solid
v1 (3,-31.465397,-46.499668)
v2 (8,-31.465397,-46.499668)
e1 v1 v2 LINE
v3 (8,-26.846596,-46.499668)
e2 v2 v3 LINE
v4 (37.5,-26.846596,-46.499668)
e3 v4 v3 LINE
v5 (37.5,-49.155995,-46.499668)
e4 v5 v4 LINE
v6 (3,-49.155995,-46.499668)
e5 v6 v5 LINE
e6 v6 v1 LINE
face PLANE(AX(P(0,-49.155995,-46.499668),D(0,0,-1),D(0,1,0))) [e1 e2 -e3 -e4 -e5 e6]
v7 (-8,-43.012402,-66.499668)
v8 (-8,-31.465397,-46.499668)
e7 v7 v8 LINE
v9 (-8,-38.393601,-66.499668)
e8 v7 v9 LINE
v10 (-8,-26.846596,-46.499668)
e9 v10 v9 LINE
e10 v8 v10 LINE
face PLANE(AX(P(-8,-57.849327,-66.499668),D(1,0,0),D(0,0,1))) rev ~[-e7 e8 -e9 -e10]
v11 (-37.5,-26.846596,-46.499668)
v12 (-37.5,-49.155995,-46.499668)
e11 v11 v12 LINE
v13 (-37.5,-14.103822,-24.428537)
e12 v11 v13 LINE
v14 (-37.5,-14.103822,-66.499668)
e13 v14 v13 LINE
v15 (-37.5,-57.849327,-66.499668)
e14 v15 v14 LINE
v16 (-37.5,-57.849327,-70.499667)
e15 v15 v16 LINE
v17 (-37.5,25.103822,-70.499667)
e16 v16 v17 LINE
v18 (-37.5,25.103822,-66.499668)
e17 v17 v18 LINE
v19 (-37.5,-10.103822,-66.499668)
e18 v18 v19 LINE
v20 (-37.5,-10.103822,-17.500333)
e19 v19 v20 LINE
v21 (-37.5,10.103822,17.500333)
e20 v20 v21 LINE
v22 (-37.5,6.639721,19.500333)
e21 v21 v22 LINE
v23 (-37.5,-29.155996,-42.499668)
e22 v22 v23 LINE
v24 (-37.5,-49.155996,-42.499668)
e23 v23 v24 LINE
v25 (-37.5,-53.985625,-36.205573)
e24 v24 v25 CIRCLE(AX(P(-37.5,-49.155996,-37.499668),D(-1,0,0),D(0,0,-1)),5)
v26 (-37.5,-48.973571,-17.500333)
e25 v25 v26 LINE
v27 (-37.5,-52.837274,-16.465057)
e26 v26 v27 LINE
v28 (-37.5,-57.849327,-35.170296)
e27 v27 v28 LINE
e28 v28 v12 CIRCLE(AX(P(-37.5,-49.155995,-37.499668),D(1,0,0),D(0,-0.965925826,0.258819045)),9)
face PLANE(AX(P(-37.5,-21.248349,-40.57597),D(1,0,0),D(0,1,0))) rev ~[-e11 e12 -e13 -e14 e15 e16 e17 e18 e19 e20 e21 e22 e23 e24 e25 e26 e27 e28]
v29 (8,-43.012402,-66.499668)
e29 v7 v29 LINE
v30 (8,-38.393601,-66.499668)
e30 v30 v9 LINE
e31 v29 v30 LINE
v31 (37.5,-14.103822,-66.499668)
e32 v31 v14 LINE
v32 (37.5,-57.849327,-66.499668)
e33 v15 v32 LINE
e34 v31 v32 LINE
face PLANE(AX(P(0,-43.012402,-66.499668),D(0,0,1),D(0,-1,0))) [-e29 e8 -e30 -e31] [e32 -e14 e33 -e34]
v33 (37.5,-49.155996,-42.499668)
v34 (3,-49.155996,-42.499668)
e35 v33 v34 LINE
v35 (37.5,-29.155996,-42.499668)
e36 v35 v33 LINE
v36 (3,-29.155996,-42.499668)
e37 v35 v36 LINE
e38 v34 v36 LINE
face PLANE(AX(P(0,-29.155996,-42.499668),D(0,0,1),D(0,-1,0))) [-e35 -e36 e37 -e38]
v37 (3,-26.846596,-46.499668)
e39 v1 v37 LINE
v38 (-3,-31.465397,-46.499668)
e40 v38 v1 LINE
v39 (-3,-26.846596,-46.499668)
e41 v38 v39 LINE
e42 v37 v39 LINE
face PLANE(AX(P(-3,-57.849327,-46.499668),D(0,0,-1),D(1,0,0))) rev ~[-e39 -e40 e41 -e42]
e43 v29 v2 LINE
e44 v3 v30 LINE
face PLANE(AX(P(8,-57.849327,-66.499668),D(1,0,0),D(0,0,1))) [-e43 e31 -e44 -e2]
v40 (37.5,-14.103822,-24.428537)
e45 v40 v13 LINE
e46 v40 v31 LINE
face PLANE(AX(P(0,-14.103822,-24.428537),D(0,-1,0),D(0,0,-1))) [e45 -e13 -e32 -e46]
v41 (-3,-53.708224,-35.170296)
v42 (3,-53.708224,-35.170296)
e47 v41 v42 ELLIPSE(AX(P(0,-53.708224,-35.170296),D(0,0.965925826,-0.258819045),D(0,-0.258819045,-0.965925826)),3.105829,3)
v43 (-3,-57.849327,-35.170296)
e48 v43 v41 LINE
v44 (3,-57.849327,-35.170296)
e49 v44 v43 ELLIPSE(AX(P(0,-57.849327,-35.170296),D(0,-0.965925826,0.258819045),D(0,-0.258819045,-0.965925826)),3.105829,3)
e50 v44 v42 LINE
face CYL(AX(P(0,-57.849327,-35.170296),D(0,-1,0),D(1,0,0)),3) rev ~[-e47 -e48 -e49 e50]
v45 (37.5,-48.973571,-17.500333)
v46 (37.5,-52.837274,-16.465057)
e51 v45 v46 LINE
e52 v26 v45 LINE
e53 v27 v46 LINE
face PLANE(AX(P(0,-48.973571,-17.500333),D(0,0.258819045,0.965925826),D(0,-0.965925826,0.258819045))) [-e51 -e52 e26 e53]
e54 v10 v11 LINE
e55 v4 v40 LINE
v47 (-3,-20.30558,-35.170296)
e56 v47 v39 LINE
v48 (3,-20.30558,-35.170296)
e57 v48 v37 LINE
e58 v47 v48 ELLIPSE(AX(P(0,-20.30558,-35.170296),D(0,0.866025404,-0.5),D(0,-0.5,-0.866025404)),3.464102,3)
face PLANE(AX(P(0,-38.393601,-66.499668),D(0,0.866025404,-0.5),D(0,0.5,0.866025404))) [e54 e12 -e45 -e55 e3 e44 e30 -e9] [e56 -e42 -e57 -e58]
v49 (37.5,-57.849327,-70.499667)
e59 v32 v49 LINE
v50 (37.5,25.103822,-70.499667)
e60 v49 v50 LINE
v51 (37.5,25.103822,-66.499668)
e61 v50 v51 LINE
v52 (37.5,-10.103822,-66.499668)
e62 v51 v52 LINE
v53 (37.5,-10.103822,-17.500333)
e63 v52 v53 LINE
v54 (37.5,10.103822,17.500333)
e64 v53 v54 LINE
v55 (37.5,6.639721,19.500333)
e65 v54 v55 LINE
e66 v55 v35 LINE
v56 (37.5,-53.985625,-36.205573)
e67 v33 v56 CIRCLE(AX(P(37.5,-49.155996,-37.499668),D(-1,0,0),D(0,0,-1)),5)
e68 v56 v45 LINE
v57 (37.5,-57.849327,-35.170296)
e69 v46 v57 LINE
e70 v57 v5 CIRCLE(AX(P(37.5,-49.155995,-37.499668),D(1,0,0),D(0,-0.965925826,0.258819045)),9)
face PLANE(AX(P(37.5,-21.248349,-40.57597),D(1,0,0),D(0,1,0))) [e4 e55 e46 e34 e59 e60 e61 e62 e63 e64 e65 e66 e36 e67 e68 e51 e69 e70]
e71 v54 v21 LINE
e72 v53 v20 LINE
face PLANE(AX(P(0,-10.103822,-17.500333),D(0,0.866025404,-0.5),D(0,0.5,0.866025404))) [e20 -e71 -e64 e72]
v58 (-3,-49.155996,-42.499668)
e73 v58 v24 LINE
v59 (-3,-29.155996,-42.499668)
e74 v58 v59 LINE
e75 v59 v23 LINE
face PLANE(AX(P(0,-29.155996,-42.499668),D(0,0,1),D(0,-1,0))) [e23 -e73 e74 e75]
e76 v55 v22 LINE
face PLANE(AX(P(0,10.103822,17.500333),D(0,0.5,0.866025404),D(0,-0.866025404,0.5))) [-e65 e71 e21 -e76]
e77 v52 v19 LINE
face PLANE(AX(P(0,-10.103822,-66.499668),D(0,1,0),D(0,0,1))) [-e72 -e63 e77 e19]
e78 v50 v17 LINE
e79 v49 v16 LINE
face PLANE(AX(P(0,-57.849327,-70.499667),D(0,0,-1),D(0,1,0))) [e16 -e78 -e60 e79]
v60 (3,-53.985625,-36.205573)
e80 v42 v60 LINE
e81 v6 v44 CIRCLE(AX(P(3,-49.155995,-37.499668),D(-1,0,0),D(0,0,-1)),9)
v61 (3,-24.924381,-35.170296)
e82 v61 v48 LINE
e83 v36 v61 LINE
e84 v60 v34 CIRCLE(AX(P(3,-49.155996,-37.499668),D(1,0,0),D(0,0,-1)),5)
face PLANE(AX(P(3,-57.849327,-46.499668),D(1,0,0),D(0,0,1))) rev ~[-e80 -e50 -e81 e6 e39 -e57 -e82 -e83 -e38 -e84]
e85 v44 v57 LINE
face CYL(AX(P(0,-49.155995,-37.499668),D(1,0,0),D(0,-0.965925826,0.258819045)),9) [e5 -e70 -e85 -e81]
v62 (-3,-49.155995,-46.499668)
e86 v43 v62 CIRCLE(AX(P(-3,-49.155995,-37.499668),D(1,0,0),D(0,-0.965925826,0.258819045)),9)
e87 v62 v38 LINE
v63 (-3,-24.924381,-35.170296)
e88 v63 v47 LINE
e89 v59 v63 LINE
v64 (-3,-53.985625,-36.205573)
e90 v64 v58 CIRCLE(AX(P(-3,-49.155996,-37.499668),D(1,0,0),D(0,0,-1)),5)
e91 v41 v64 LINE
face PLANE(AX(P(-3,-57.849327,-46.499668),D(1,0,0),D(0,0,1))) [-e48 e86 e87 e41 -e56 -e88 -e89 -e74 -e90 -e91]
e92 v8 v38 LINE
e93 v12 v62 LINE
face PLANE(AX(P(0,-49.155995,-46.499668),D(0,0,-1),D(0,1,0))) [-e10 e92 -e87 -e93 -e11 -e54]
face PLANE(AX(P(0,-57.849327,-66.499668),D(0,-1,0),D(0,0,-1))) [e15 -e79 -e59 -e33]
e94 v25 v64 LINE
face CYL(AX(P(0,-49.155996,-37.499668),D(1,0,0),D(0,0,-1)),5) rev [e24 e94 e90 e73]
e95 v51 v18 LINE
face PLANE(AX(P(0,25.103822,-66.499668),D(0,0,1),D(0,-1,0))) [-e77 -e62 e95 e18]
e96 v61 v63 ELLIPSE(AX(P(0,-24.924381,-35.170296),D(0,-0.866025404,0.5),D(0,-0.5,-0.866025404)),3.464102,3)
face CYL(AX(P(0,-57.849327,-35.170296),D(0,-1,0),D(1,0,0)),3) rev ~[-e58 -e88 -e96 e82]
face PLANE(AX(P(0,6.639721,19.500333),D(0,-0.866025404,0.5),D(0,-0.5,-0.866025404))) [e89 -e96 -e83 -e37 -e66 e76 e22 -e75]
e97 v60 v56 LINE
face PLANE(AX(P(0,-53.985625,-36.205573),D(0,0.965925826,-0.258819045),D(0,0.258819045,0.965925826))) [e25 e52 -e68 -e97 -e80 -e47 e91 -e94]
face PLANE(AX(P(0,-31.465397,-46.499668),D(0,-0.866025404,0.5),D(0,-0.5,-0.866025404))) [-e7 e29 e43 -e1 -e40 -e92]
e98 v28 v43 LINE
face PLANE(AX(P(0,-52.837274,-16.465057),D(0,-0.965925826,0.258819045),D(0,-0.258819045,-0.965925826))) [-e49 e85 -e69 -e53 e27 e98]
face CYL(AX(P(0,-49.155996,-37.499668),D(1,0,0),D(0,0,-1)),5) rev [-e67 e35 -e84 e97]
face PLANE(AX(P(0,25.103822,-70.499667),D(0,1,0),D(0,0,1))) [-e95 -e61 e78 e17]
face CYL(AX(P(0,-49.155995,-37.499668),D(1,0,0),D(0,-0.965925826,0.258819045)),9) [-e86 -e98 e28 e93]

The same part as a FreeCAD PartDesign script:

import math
import FreeCAD as App
import Part
import Sketcher

V = App.Vector
Q = App.Units.Quantity


def add_polygon(sketch, points):
    """Adds a closed chain of lines whose ends are joined by coincident constraints."""
    first, n = sketch.GeometryCount, len(points)
    for a, b in zip(points, points[1:] + points[:1]):
        sketch.addGeometry(Part.LineSegment(App.Vector(*a, 0), App.Vector(*b, 0)), False)
    for i in range(n):
        sketch.addConstraint(Sketcher.Constraint("Coincident", first + i, 2, first + (i + 1) % n, 1))

doc = App.newDocument("Part")
body = doc.addObject("PartDesign::Body", "Body")

# Sketch on YZ plane
sketch1 = body.newObject("Sketcher::SketchObject", "Sketch")
sketch1.AttachmentSupport = (doc.getObject("YZ_Plane"), [""])
sketch1.MapMode = "FlatFace"
sketch1.addGeometry(Part.ArcOfCircle(Part.Circle(V(-49.2, -37.5, 0), V(0, 0, 1), 5), math.radians(165), math.radians(270)), False)  # 0
sketch1.addGeometry(Part.LineSegment(V(-54, -36.2, 0), V(-49, -17.5, 0)), False)  # 1
sketch1.addGeometry(Part.LineSegment(V(-49, -17.5, 0), V(-52.8, -16.5, 0)), False)  # 2
sketch1.addGeometry(Part.LineSegment(V(-52.8, -16.5, 0), V(-57.8, -35.2, 0)), False)  # 3
sketch1.addGeometry(Part.ArcOfCircle(Part.Circle(V(-49.2, -37.5, 0), V(0, 0, 1), 9), math.radians(165), math.radians(270)), False)  # 4
sketch1.addGeometry(Part.LineSegment(V(-49.2, -46.5, 0), V(-31.5, -46.5, 0)), False)  # 5
sketch1.addGeometry(Part.LineSegment(V(-31.5, -46.5, 0), V(-43, -66.5, 0)), False)  # 6
sketch1.addGeometry(Part.LineSegment(V(-43, -66.5, 0), V(-57.8, -66.5, 0)), False)  # 7
sketch1.addGeometry(Part.LineSegment(V(-57.8, -66.5, 0), V(-57.8, -70.5, 0)), False)  # 8
sketch1.addGeometry(Part.LineSegment(V(-57.8, -70.5, 0), V(25.1, -70.5, 0)), False)  # 9
sketch1.addGeometry(Part.LineSegment(V(25.1, -70.5, 0), V(25.1, -66.5, 0)), False)  # 10
sketch1.addGeometry(Part.LineSegment(V(25.1, -66.5, 0), V(-10.1, -66.5, 0)), False)  # 11
sketch1.addGeometry(Part.LineSegment(V(-10.1, -66.5, 0), V(-10.1, -17.5, 0)), False)  # 12
sketch1.addGeometry(Part.LineSegment(V(-10.1, -17.5, 0), V(10.1, 17.5, 0)), False)  # 13
sketch1.addGeometry(Part.LineSegment(V(10.1, 17.5, 0), V(6.6, 19.5, 0)), False)  # 14
sketch1.addGeometry(Part.LineSegment(V(6.6, 19.5, 0), V(-29.2, -42.5, 0)), False)  # 15
sketch1.addGeometry(Part.LineSegment(V(-29.2, -42.5, 0), V(-49.2, -42.5, 0)), False)  # 16
add_polygon(sketch1, [(-14.1, -24.4), (-14.1, -66.5), (-38.4, -66.5)])  # lines 17-19
sketch1.addConstraint([
    Sketcher.Constraint("Tangent", 0, 1, 1, 1),
    Sketcher.Constraint("Coincident", 1, 2, 2, 1),
    Sketcher.Constraint("Coincident", 2, 2, 3, 1),
    Sketcher.Constraint("Tangent", 3, 2, 4, 1),
    Sketcher.Constraint("Tangent", 4, 2, 5, 1),
    Sketcher.Constraint("Coincident", 5, 2, 6, 1),
    Sketcher.Constraint("Coincident", 6, 2, 7, 1),
    Sketcher.Constraint("Coincident", 7, 2, 8, 1),
    Sketcher.Constraint("Coincident", 8, 2, 9, 1),
    Sketcher.Constraint("Coincident", 9, 2, 10, 1),
    Sketcher.Constraint("Coincident", 10, 2, 11, 1),
    Sketcher.Constraint("Coincident", 11, 2, 12, 1),
    Sketcher.Constraint("Coincident", 12, 2, 13, 1),
    Sketcher.Constraint("Coincident", 13, 2, 14, 1),
    Sketcher.Constraint("Coincident", 14, 2, 15, 1),
    Sketcher.Constraint("Coincident", 15, 2, 16, 1),
    Sketcher.Constraint("Tangent", 16, 2, 0, 2),
    Sketcher.Constraint("Horizontal", 5),
    Sketcher.Constraint("Horizontal", 7),
    Sketcher.Constraint("Vertical", 8),
    Sketcher.Constraint("Horizontal", 9),
    Sketcher.Constraint("Vertical", 10),
    Sketcher.Constraint("Horizontal", 11),
    Sketcher.Constraint("Vertical", 12),
    Sketcher.Constraint("Horizontal", 16),
    Sketcher.Constraint("Vertical", 17),
    Sketcher.Constraint("Horizontal", 18),
    Sketcher.Constraint("Coincident", 4, 3, 0, 3),
    Sketcher.Constraint("Symmetric", 12, 2, 13, 2, -1, 1),
    Sketcher.Constraint("Perpendicular", 1, 2),
    Sketcher.Constraint("Perpendicular", 2, 3),
    Sketcher.Constraint("Parallel", 6, 13),
    Sketcher.Constraint("Perpendicular", 13, 14),
    Sketcher.Constraint("Perpendicular", 14, 15),
    Sketcher.Constraint("Parallel", 15, 19),
    Sketcher.Constraint("Horizontal", 7, 2, 10, 2),
    Sketcher.Constraint("Horizontal", 1, 2, 12, 2),
    Sketcher.Constraint("Horizontal", 11, 2, 17, 2),
    Sketcher.Constraint("Vertical", 3, 2, 7, 2),
    Sketcher.Constraint("Equal", 2, 14),
    Sketcher.Constraint("Radius", 0, Q("5 mm")),
    Sketcher.Constraint("Radius", 4, Q("9 mm")),
    Sketcher.Constraint("DistanceX", 16, 2, 16, 1, Q("20 mm")),
    Sketcher.Constraint("DistanceY", 8, 2, 8, 1, Q("3.999999 mm")),
    Sketcher.Constraint("Angle", 1, Q("75 deg")),
    Sketcher.Constraint("Angle", 6, Q("-120 deg")),
    Sketcher.Constraint("DistanceY", 6, 2, 4, 2, Q("20 mm")),
    Sketcher.Constraint("DistanceY", 5, 2, 13, 2, Q("64.000001 mm")),
    Sketcher.Constraint("DistanceX", 17, 2, 11, 2, Q("4 mm")),
    Sketcher.Constraint("DistanceX", 5, 1, 5, 2, Q("17.690598 mm")),
    Sketcher.Constraint("DistanceX", 9, 1, 9, 2, Q("82.95315 mm")),
    Sketcher.Constraint("DistanceX", 18, 2, 18, 1, Q("24.289779 mm")),
    Sketcher.Constraint("DistanceX", 18, 2, -1, 1, Q("38.393601 mm")),
])
pad1 = body.newObject("PartDesign::Pad", "Pad")
pad1.Profile = sketch1
pad1.Length = 75
pad1.Midplane = True

# Sketch on XZ plane
sketch2 = body.newObject("Sketcher::SketchObject", "Sketch001")
sketch2.AttachmentSupport = (doc.getObject("XZ_Plane"), [""])
sketch2.MapMode = "FlatFace"
sketch2.AttachmentOffset = App.Placement(V(0, 0, 57.849327), App.Rotation())
add_polygon(sketch2, [(-37.5, -46.5), (-37.5, -66.5), (-8, -66.5), (-8, -46.5)])  # lines 0-3
add_polygon(sketch2, [(8, -46.5), (8, -66.5), (37.5, -66.5), (37.5, -46.5)])  # lines 4-7
sketch2.addGeometry(Part.LineSegment(V(-3, -35.2, 0), V(-3, -46.5, 0)), False)  # 8
sketch2.addGeometry(Part.LineSegment(V(-3, -46.5, 0), V(3, -46.5, 0)), False)  # 9
sketch2.addGeometry(Part.LineSegment(V(3, -46.5, 0), V(3, -35.2, 0)), False)  # 10
sketch2.addGeometry(Part.ArcOfCircle(Part.Circle(V(0, -35.2, 0), V(0, 0, 1), 3), math.radians(0), math.radians(180)), False)  # 11
sketch2.addConstraint([
    Sketcher.Constraint("Coincident", 8, 2, 9, 1),
    Sketcher.Constraint("Coincident", 9, 2, 10, 1),
    Sketcher.Constraint("Tangent", 10, 2, 11, 1),
    Sketcher.Constraint("Tangent", 11, 2, 8, 1),
    Sketcher.Constraint("Vertical", 0),
    Sketcher.Constraint("Horizontal", 1),
    Sketcher.Constraint("Vertical", 2),
    Sketcher.Constraint("Horizontal", 3),
    Sketcher.Constraint("Vertical", 4),
    Sketcher.Constraint("Horizontal", 5),
    Sketcher.Constraint("Vertical", 6),
    Sketcher.Constraint("Horizontal", 7),
    Sketcher.Constraint("Vertical", 8),
    Sketcher.Constraint("Horizontal", 9),
    Sketcher.Constraint("Vertical", 10),
    Sketcher.Constraint("Symmetric", 1, 2, 4, 2, -2),
    Sketcher.Constraint("Symmetric", 3, 2, 6, 2, -2),
    Sketcher.Constraint("PointOnObject", 11, 3, -2),
    Sketcher.Constraint("Horizontal", 7, 2, 8, 2),
    Sketcher.Constraint("Radius", 11, Q("3 mm")),
    Sketcher.Constraint("DistanceY", 0, 2, 0, 1, Q("20 mm")),
    Sketcher.Constraint("DistanceX", 1, 1, 1, 2, Q("29.5 mm")),
    Sketcher.Constraint("DistanceX", 1, 2, -1, 1, Q("8 mm")),
    Sketcher.Constraint("DistanceY", 8, 2, 8, 1, Q("11.329371 mm")),
    Sketcher.Constraint("DistanceY", 11, 3, -1, 1, Q("35.170296 mm")),
])
pocket1 = body.newObject("PartDesign::Pocket", "Pocket")
pocket1.Profile = sketch2
pocket1.Type = "TwoLengths"
pocket1.Length = 43.745505
pocket1.Length2 = 2

doc.recompute()
